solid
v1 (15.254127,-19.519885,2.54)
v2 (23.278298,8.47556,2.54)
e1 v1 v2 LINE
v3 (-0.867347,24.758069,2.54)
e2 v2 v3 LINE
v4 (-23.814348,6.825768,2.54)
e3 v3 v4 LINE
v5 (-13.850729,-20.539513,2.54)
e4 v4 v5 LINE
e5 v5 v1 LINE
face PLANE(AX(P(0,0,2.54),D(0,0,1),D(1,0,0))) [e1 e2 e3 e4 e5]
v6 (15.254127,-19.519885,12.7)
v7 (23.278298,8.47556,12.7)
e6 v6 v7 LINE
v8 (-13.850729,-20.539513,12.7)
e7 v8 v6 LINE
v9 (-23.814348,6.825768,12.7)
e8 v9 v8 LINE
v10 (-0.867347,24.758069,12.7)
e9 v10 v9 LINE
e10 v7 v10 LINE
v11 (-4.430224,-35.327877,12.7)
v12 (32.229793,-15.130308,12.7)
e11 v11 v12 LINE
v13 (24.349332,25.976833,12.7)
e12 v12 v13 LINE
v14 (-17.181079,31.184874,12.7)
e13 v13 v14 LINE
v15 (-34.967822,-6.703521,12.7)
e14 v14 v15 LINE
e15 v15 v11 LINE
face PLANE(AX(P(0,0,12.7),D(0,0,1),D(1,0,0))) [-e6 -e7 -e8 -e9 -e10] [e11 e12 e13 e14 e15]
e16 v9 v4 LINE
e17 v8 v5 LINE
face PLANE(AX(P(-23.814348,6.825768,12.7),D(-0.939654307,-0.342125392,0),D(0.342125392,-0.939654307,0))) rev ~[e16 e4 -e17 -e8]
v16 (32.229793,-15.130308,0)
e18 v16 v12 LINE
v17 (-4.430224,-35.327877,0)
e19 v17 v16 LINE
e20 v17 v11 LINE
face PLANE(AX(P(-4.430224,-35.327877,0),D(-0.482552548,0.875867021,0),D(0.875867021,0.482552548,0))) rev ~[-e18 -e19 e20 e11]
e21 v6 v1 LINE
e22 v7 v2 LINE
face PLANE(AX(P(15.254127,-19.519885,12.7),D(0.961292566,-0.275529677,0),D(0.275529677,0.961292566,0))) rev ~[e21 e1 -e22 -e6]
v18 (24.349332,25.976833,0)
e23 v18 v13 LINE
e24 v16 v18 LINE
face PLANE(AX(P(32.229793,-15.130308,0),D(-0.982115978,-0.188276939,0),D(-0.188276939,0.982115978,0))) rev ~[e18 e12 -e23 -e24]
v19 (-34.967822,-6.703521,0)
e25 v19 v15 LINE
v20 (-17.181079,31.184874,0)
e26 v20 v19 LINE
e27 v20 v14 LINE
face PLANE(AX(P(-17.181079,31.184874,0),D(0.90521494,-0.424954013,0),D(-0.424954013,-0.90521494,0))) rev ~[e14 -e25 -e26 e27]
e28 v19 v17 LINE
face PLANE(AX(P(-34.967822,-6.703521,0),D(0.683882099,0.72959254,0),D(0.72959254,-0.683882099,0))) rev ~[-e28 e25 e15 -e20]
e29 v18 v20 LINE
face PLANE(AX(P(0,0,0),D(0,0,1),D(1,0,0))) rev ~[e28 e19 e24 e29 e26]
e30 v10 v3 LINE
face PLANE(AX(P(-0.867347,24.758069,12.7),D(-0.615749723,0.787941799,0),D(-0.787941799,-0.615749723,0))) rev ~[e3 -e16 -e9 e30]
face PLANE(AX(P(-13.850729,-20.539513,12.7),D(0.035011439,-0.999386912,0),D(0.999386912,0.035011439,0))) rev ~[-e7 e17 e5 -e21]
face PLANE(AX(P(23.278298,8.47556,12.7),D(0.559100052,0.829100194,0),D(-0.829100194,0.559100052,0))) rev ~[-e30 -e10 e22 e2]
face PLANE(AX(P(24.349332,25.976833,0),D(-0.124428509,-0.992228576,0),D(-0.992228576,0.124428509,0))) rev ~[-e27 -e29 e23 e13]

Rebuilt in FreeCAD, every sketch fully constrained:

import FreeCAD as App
import Part
import Sketcher

V = App.Vector
Q = App.Units.Quantity

doc = App.newDocument("Part")
body = doc.addObject("PartDesign::Body", "Body")

# Sketch on XY plane
sketch1 = body.newObject("Sketcher::SketchObject", "Sketch")
sketch1.AttachmentSupport = (doc.getObject("XY_Plane"), [""])
sketch1.MapMode = "FlatFace"
sketch1.addGeometry([
    Part.LineSegment(V(-4.430224, -35.327877, 0), V(32.229793, -15.130308, 0)),  # 0
    Part.LineSegment(V(32.229793, -15.130308, 0), V(24.349332, 25.976833, 0)),  # 1
    Part.LineSegment(V(24.349332, 25.976833, 0), V(-17.181079, 31.184874, 0)),  # 2
    Part.LineSegment(V(-17.181079, 31.184874, 0), V(-34.967822, -6.703521, 0)),  # 3
    Part.LineSegment(V(-34.967822, -6.703521, 0), V(-4.430224, -35.327877, 0)),  # 4
], False)
sketch1.addConstraint([
    Sketcher.Constraint("Coincident", 0, 2, 1, 1),
    Sketcher.Constraint("Coincident", 1, 2, 2, 1),
    Sketcher.Constraint("Coincident", 2, 2, 3, 1),
    Sketcher.Constraint("Coincident", 3, 2, 4, 1),
    Sketcher.Constraint("Coincident", 4, 2, 0, 1),
    Sketcher.Constraint("Equal", 0, 1),
    Sketcher.Constraint("Equal", 1, 2),
    Sketcher.Constraint("Equal", 2, 3),
    Sketcher.Constraint("Equal", 3, 4),
    Sketcher.Constraint("Distance", 0, Q("41.855688 mm")),
    Sketcher.Constraint("DistanceX", 2, 2, -1, 1, Q("17.181079 mm")),
    Sketcher.Constraint("DistanceX", 3, 2, -1, 1, Q("34.967822 mm")),
    Sketcher.Constraint("DistanceY", 3, 2, -1, 1, Q("6.703521 mm")),
    Sketcher.Constraint("DistanceX", 1, 2, 0, 2, Q("7.880461 mm")),
    Sketcher.Constraint("DistanceX", 2, 2, 1, 2, Q("41.530411 mm")),
])
pad1 = body.newObject("PartDesign::Pad", "Pad")
pad1.Profile = sketch1
pad1.Length = Q("0.5 in")

# Sketch on XY plane
sketch2 = body.newObject("Sketcher::SketchObject", "Sketch001")
sketch2.AttachmentSupport = (doc.getObject("XY_Plane"), [""])
sketch2.MapMode = "FlatFace"
sketch2.AttachmentOffset = App.Placement(V(0, 0, 0.5 * 25.4), App.Rotation())
sketch2.addGeometry([
    Part.LineSegment(V(15.254127, -19.519885, 0), V(23.278298, 8.47556, 0)),  # 0
    Part.LineSegment(V(23.278298, 8.47556, 0), V(-0.867347, 24.758069, 0)),  # 1
    Part.LineSegment(V(-0.867347, 24.758069, 0), V(-23.814348, 6.825768, 0)),  # 2
    Part.LineSegment(V(-23.814348, 6.825768, 0), V(-13.850729, -20.539513, 0)),  # 3
    Part.LineSegment(V(-13.850729, -20.539513, 0), V(15.254127, -19.519885, 0)),  # 4
], False)
sketch2.addConstraint([
    Sketcher.Constraint("Coincident", 0, 2, 1, 1),
    Sketcher.Constraint("Coincident", 1, 2, 2, 1),
    Sketcher.Constraint("Coincident", 2, 2, 3, 1),
    Sketcher.Constraint("Coincident", 3, 2, 4, 1),
    Sketcher.Constraint("Coincident", 4, 2, 0, 1),
    Sketcher.Constraint("Equal", 0, 1),
    Sketcher.Constraint("Equal", 1, 2),
    Sketcher.Constraint("Equal", 2, 3),
    Sketcher.Constraint("Equal", 3, 4),
    Sketcher.Constraint("DistanceX", 2, 2, 1, 2, Q("22.947001 mm")),
    Sketcher.Constraint("DistanceY", 2, 2, 1, 2, Q("17.932301 mm")),
    Sketcher.Constraint("DistanceY", -1, 1, 0, 2, Q("8.47556 mm")),
    Sketcher.Constraint("DistanceY", -1, 1, 1, 2, Q("24.758069 mm")),
    Sketcher.Constraint("DistanceX", 3, 2, -1, 1, Q("13.850729 mm")),
    Sketcher.Constraint("DistanceX", 2, 2, 3, 2, Q("9.963619 mm")),
])
pocket1 = body.newObject("PartDesign::Pocket", "Pocket")
pocket1.Profile = sketch2
pocket1.Length = Q("0.4 in")

doc.recompute()
